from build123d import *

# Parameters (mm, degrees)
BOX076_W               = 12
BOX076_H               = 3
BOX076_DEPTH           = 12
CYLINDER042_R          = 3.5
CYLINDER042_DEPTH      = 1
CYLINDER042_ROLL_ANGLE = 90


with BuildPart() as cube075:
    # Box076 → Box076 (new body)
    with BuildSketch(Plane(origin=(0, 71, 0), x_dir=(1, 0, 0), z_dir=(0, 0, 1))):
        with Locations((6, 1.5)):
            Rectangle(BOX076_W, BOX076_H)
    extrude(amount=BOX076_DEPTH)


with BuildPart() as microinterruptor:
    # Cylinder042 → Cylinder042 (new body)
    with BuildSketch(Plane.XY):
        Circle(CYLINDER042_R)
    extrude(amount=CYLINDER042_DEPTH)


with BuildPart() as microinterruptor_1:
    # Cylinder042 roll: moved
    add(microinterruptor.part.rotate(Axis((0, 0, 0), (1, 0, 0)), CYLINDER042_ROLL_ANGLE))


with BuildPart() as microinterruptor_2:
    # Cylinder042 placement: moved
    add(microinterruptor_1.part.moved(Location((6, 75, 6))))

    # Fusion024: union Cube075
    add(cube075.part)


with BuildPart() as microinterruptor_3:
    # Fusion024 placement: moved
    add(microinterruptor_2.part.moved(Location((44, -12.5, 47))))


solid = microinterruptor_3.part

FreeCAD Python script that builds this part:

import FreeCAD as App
import Part
import Sketcher
from FreeCAD import Vector


def add_polygon(sketch, points):
    """Adds a closed chain of lines whose ends are joined by coincident constraints."""
    first, n = sketch.GeometryCount, len(points)
    for a, b in zip(points, points[1:] + points[:1]):
        sketch.addGeometry(Part.LineSegment(App.Vector(*a, 0), App.Vector(*b, 0)), False)
    for i in range(n):
        sketch.addConstraint(Sketcher.Constraint("Coincident", first + i, 2, first + (i + 1) % n, 1))

doc = App.newDocument("Part")
body = doc.addObject("PartDesign::Body", "Body")

# Sketch on XY plane
sketch1 = body.newObject("Sketcher::SketchObject", "Sketch")
sketch1.AttachmentSupport = (doc.getObject("XY_Plane"), [""])
sketch1.MapMode = "FlatFace"
add_polygon(sketch1, [(0, 74), (0, 71), (12, 71), (12, 74)])  # lines 0-3
sketch1.addConstraint(Sketcher.Constraint("Vertical", 0))
sketch1.addConstraint(Sketcher.Constraint("Horizontal", 1))
sketch1.addConstraint(Sketcher.Constraint("Vertical", 2))
sketch1.addConstraint(Sketcher.Constraint("Horizontal", 3))
sketch1.addConstraint(Sketcher.Constraint("PointOnObject", 0, 2, -2))
sketch1.addConstraint(Sketcher.Constraint("DistanceX", 1, 1, 1, 2, 12.0))
sketch1.addConstraint(Sketcher.Constraint("DistanceY", 0, 2, 0, 1, 3.0))
sketch1.addConstraint(Sketcher.Constraint("DistanceY", -1, 1, 0, 2, 71.0))
pad1 = body.newObject("PartDesign::Pad", "Pad")
pad1.Profile = sketch1
pad1.Length = 12
body2 = doc.addObject("PartDesign::Body", "Body001")

# Sketch on XY plane
sketch2 = body2.newObject("Sketcher::SketchObject", "Sketch001")
sketch2.AttachmentSupport = (doc.getObject("XY_Plane001"), [""])
sketch2.MapMode = "FlatFace"
sketch2.addGeometry(Part.Circle(Vector(0, 0, 0), Vector(0, 0, 1), 3.5), False)
sketch2.addConstraint(Sketcher.Constraint("Coincident", 0, 3, -1, 1))
sketch2.addConstraint(Sketcher.Constraint("Diameter", 0, 7.0))
pad2 = body2.newObject("PartDesign::Pad", "Pad001")
pad2.Profile = sketch2
pad2.Length = 1
body3 = doc.addObject("PartDesign::Body", "Body002")
doc.recompute()

body2.Placement = App.Placement(Vector(0, 0, 0), App.Rotation(Vector(1, 0, 0), 90))
boolean = body3.newObject("PartDesign::Boolean", "Boolean")
boolean.Type = "Fuse"
boolean.addObjects([body2])
body4 = doc.addObject("PartDesign::Body", "Body003")
doc.recompute()

body3.Placement = App.Placement(Vector(6, 75, 6), App.Rotation(Vector(0, 0, 1), 0))
boolean2 = body4.newObject("PartDesign::Boolean", "Boolean001")
boolean2.Type = "Fuse"
boolean2.addObjects([body3])
doc.recompute()

boolean3 = body4.newObject("PartDesign::Boolean", "Boolean002")
boolean3.Type = "Fuse"
boolean3.addObjects([body])
body5 = doc.addObject("PartDesign::Body", "Body004")
doc.recompute()

body4.Placement = App.Placement(Vector(44, -12.5, 47), App.Rotation(Vector(0, 0, 1), 0))
boolean4 = body5.newObject("PartDesign::Boolean", "Boolean003")
boolean4.Type = "Fuse"
boolean4.addObjects([body4])

doc.recompute()
